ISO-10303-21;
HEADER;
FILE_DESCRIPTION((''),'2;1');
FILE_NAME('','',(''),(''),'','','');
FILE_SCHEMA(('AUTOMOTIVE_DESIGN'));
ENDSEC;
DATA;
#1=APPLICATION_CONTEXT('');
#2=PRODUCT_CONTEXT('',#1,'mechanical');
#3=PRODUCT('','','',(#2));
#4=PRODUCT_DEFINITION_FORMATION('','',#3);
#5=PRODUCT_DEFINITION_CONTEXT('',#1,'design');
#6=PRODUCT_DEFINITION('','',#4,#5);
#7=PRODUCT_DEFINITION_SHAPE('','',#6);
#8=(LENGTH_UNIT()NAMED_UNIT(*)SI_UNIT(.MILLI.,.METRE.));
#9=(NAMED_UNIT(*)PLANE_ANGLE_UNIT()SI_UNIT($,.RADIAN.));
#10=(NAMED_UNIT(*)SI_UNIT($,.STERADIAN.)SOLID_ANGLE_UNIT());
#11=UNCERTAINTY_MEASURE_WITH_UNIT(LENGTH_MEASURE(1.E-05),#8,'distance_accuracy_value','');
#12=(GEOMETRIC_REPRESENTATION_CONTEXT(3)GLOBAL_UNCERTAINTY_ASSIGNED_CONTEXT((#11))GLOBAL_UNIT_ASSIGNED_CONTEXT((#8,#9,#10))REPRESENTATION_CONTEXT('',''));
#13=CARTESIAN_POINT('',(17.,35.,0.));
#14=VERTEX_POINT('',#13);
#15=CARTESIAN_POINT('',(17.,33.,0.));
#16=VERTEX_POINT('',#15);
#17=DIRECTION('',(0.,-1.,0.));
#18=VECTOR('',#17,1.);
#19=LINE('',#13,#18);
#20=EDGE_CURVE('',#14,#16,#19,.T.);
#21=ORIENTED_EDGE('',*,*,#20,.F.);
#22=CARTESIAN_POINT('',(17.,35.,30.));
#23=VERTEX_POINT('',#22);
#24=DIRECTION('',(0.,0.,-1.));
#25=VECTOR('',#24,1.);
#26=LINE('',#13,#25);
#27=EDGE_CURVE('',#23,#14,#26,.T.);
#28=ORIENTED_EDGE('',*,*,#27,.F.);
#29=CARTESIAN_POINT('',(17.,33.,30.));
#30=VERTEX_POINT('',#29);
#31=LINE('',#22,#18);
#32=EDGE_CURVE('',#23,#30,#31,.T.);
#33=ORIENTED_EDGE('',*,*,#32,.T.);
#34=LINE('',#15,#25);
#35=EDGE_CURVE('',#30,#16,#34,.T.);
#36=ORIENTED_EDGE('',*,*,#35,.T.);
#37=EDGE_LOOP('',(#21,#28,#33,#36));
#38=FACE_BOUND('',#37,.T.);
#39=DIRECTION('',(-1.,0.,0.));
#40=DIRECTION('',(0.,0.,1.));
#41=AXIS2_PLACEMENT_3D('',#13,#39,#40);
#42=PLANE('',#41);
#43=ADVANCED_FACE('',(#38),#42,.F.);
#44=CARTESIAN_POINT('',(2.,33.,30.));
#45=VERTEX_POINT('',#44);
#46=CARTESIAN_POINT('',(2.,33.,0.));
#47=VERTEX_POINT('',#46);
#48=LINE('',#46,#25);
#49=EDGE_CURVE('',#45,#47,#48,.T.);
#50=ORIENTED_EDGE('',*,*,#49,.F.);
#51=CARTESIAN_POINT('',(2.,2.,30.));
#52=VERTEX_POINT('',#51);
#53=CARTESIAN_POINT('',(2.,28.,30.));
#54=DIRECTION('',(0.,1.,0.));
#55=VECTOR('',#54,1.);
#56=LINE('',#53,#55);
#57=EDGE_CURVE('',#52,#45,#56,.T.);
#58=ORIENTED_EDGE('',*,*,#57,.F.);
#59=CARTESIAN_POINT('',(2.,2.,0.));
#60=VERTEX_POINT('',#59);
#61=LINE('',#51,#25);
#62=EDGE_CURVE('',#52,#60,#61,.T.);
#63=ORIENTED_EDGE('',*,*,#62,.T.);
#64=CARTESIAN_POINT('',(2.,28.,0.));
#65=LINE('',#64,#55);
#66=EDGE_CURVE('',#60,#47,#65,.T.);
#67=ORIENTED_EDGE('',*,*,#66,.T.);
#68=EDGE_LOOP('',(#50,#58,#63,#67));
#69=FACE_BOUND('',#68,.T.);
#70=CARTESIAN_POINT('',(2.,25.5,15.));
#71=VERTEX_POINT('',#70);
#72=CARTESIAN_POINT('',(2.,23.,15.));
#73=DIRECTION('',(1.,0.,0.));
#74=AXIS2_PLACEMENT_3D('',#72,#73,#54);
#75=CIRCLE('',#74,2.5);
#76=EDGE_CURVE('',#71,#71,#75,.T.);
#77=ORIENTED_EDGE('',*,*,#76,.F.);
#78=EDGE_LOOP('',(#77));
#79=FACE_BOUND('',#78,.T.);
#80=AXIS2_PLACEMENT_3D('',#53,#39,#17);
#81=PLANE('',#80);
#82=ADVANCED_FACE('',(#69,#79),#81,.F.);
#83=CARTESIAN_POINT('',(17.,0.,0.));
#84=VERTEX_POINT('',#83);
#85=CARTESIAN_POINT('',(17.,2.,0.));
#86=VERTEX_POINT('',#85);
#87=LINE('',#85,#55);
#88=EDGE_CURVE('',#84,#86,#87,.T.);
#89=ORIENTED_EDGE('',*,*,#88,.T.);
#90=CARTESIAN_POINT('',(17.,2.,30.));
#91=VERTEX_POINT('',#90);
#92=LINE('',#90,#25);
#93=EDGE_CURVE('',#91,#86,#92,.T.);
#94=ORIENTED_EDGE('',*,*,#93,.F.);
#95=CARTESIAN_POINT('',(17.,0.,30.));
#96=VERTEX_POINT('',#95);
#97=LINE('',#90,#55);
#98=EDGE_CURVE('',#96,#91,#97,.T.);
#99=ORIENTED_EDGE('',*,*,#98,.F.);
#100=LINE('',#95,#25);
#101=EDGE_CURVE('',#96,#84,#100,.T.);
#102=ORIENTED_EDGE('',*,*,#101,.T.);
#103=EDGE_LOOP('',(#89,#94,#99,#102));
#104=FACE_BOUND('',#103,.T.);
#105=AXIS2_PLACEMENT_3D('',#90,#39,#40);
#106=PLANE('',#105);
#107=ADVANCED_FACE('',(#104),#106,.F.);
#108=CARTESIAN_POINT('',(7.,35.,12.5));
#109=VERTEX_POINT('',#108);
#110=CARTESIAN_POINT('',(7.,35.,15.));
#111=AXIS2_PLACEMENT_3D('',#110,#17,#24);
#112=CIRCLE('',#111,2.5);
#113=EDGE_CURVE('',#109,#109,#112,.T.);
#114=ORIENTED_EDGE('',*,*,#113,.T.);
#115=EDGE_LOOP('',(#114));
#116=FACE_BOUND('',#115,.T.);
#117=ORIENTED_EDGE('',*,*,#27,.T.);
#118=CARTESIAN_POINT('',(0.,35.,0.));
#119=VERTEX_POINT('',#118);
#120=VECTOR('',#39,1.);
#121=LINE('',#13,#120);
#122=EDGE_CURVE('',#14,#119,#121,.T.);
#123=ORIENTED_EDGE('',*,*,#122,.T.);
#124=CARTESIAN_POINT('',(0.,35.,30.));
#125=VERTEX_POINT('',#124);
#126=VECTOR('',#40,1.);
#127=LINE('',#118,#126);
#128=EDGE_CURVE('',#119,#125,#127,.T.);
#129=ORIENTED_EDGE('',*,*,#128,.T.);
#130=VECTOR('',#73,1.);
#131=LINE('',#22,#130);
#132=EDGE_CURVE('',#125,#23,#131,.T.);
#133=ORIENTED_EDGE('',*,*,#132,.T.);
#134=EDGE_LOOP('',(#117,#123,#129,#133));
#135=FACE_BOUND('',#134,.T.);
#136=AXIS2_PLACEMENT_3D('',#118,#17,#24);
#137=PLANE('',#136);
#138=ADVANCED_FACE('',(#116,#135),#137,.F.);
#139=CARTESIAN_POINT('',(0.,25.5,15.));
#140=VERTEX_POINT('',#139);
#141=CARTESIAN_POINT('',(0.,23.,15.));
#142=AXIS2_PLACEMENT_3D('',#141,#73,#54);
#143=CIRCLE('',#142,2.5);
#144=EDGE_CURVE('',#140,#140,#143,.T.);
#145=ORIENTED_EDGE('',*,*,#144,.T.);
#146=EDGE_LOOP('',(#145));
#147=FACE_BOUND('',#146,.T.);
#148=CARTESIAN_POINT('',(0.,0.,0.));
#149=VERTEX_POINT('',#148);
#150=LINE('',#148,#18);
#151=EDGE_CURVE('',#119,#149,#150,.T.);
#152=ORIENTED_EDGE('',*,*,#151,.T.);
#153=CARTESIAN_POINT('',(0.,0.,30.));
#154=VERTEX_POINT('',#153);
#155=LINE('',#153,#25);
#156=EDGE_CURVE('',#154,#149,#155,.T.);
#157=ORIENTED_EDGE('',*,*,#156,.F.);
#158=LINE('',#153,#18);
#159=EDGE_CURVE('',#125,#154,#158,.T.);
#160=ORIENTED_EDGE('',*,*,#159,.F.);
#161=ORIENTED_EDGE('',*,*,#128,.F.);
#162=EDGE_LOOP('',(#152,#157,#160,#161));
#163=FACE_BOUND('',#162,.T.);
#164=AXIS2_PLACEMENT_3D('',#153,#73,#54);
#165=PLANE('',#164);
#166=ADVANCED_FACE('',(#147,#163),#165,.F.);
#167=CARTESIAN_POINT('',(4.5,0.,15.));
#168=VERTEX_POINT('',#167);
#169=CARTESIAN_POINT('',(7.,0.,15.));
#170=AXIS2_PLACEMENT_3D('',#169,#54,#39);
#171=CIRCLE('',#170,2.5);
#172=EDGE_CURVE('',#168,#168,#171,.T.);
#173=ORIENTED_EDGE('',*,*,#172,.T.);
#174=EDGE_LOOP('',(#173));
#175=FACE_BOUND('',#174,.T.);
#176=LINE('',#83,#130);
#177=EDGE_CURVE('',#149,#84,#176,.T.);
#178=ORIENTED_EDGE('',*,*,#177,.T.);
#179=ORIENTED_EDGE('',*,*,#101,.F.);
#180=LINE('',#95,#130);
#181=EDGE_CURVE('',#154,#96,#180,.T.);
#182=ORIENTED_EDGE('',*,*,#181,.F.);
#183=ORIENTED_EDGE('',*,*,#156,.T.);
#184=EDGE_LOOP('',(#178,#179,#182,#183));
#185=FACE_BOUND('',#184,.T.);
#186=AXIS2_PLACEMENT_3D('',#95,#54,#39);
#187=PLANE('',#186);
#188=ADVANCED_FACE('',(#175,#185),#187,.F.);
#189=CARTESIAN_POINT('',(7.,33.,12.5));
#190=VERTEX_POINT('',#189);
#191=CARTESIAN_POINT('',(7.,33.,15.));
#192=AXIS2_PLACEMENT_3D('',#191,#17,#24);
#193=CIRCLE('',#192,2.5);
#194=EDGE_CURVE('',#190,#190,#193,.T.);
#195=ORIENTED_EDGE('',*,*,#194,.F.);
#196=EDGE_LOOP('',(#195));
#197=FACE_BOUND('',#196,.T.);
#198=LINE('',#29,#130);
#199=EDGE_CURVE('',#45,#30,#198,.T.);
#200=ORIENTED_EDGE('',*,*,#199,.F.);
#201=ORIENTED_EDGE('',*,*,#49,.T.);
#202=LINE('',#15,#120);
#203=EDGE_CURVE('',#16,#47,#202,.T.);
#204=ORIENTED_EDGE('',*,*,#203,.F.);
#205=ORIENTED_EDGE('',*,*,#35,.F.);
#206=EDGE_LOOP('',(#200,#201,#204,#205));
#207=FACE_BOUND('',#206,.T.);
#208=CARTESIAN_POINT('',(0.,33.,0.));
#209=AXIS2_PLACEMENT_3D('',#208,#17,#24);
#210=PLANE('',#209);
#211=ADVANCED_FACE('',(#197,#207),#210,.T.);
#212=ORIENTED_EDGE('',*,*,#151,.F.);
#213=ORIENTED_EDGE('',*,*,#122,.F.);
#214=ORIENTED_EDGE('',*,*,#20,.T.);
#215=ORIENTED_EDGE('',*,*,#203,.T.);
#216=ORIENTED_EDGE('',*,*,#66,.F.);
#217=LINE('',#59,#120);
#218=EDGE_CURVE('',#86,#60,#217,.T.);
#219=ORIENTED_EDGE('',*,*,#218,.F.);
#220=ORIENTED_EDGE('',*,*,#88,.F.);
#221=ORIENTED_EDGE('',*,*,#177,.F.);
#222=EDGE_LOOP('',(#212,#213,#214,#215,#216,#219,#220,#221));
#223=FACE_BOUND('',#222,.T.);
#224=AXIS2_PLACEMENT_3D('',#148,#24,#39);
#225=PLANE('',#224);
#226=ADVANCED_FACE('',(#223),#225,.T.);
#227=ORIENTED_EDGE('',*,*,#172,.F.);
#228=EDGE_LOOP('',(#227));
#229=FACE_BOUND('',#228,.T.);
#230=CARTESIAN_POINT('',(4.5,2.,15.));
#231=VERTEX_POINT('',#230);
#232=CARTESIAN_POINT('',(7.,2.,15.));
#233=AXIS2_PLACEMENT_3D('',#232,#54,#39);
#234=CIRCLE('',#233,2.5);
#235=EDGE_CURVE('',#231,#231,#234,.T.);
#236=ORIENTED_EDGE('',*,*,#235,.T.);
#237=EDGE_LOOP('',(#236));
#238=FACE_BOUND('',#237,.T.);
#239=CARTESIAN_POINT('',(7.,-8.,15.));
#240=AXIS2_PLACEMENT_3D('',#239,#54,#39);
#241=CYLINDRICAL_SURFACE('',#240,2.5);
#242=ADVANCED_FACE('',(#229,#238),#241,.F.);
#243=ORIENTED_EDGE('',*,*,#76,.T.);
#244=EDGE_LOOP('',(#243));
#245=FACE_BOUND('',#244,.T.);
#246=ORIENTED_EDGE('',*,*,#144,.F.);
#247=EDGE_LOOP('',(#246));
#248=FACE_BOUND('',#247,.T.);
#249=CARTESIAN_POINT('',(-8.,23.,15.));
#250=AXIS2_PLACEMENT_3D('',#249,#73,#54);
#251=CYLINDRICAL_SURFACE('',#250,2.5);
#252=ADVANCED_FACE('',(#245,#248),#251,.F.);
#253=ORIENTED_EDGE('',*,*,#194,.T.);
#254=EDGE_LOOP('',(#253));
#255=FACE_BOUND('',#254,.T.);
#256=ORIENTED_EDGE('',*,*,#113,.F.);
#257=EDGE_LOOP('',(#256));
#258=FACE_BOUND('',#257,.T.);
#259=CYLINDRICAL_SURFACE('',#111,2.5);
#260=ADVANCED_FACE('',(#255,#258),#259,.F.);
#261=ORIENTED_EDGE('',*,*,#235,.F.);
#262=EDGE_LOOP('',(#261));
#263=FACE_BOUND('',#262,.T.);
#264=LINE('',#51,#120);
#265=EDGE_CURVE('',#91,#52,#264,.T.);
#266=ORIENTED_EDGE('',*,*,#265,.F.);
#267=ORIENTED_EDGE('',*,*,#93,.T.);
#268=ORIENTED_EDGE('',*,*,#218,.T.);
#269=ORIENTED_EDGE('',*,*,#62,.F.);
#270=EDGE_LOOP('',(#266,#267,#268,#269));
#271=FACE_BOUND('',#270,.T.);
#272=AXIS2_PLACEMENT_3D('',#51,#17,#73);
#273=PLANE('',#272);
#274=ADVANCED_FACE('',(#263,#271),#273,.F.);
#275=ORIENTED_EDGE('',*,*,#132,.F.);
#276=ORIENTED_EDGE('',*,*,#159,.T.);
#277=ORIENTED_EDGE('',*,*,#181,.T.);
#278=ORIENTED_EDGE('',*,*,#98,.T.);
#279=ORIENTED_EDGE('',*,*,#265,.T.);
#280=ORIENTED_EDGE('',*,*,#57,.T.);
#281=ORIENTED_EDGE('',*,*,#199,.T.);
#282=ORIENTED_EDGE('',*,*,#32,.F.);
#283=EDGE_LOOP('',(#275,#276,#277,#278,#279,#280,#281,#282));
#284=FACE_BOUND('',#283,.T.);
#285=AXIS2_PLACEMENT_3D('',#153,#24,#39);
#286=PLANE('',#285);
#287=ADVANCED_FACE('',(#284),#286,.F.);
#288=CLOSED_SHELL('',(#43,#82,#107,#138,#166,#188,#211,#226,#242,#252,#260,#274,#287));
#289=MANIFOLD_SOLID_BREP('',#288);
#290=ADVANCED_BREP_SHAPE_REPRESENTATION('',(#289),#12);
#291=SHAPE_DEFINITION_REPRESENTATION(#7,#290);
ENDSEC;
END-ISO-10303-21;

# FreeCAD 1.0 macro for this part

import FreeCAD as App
import Part
import Sketcher
Q = App.Units.Quantity


def add_polygon(sketch, points):
    """Adds a closed chain of lines whose ends are joined by coincident constraints."""
    first, n = sketch.GeometryCount, len(points)
    for a, b in zip(points, points[1:] + points[:1]):
        sketch.addGeometry(Part.LineSegment(App.Vector(*a, 0), App.Vector(*b, 0)), False)
    for i in range(n):
        sketch.addConstraint(Sketcher.Constraint("Coincident", first + i, 2, first + (i + 1) % n, 1))

doc = App.newDocument("Part")
body = doc.addObject("PartDesign::Body", "Body")

sketch1 = doc.addObject("Sketcher::SketchObject", "Sketch")
body.addObject(sketch1)
sketch1.AttachmentSupport = (doc.XY_Plane, [""])
sketch1.MapMode = "FlatFace"
add_polygon(sketch1, [(0, 28), (0, 0), (17, 0), (17, 2), (2, 2), (2, 28)])
sketch1.addConstraint([
    Sketcher.Constraint("Vertical", 0),
    Sketcher.Constraint("Horizontal", 1),
    Sketcher.Constraint("Vertical", 2),
    Sketcher.Constraint("Horizontal", 3),
    Sketcher.Constraint("Vertical", 4),
    Sketcher.Constraint("Horizontal", 5),
    Sketcher.Constraint("Coincident", 0, 2, -1, 1),
    Sketcher.Constraint("Equal", 5, 2),
    Sketcher.Constraint("DistanceX", 1, 1, 1, 2, Q("17 mm")),
    Sketcher.Constraint("DistanceX", 3, 2, 3, 1, Q("15 mm")),
    Sketcher.Constraint("DistanceY", 0, 2, 0, 1, Q("28 mm")),
])
pad1 = doc.addObject("PartDesign::Pad", "Pad")
body.addObject(pad1)
pad1.Profile = sketch1
pad1.Length = 30

sketch2 = doc.addObject("Sketcher::SketchObject", "Sketch001")
body.addObject(sketch2)
sketch2.AttachmentSupport = (doc.XZ_Plane, [""])
sketch2.MapMode = "FlatFace"
sketch2.AttachmentOffset = App.Placement(App.Vector(0, 0, -2), App.Rotation())
sketch2.addGeometry(Part.Circle(App.Vector(7, 15, 0), App.Vector(0, 0, 1), 2.5), False)
sketch2.addConstraint([
    Sketcher.Constraint("Diameter", 0, Q("5 mm")),
    Sketcher.Constraint("DistanceX", -1, 1, 0, 3, Q("7 mm")),
    Sketcher.Constraint("DistanceY", -1, 1, 0, 3, Q("15 mm")),
])
pocket1 = doc.addObject("PartDesign::Pocket", "Pocket")
body.addObject(pocket1)
pocket1.Profile = sketch2
pocket1.Length = 10
pocket1.Reversed = True

sketch3 = doc.addObject("Sketcher::SketchObject", "Sketch002")
body.addObject(sketch3)
sketch3.AttachmentSupport = (doc.YZ_Plane, [""])
sketch3.MapMode = "FlatFace"
sketch3.AttachmentOffset = App.Placement(App.Vector(0, 0, 2), App.Rotation())
sketch3.addGeometry(Part.Circle(App.Vector(23, 15, 0), App.Vector(0, 0, 1), 2.5), False)
sketch3.addConstraint([
    Sketcher.Constraint("Diameter", 0, Q("5 mm")),
    Sketcher.Constraint("DistanceX", -1, 1, 0, 3, Q("23 mm")),
    Sketcher.Constraint("DistanceY", -1, 1, 0, 3, Q("15 mm")),
])
pocket2 = doc.addObject("PartDesign::Pocket", "Pocket001")
body.addObject(pocket2)
pocket2.Profile = sketch3
pocket2.Length = 10

sketch4 = doc.addObject("Sketcher::SketchObject", "Sketch003")
body.addObject(sketch4)
sketch4.AttachmentSupport = (doc.XZ_Plane, [""])
sketch4.MapMode = "FlatFace"
sketch4.AttachmentOffset = App.Placement(App.Vector(0, 0, -28), App.Rotation())
add_polygon(sketch4, [(0, 0), (0, 30), (2, 30), (2, 0)])
sketch4.addConstraint([
    Sketcher.Constraint("Vertical", 0),
    Sketcher.Constraint("Horizontal", 1),
    Sketcher.Constraint("Vertical", 2),
    Sketcher.Constraint("Horizontal", 3),
    Sketcher.Constraint("Coincident", 3, 2, -1, 1),
    Sketcher.Constraint("DistanceX", 1, 1, 1, 2, Q("2 mm")),
    Sketcher.Constraint("DistanceY", 0, 1, 0, 2, Q("30 mm")),
])
pad2 = doc.addObject("PartDesign::Pad", "Pad001")
body.addObject(pad2)
pad2.Profile = sketch4
pad2.Length = 5
pad2.Reversed = True

sketch5 = doc.addObject("Sketcher::SketchObject", "Sketch004")
body.addObject(sketch5)
sketch5.AttachmentSupport = (doc.XZ_Plane, [""])
sketch5.MapMode = "FlatFace"
sketch5.AttachmentOffset = App.Placement(App.Vector(0, 0, -33), App.Rotation())
add_polygon(sketch5, [(0, 0), (0, 30), (17, 30), (17, 0)])
sketch5.addConstraint([
    Sketcher.Constraint("Vertical", 0),
    Sketcher.Constraint("Horizontal", 1),
    Sketcher.Constraint("Vertical", 2),
    Sketcher.Constraint("Horizontal", 3),
    Sketcher.Constraint("Coincident", 3, 2, -1, 1),
    Sketcher.Constraint("DistanceX", 1, 1, 1, 2, Q("17 mm")),
    Sketcher.Constraint("DistanceY", 0, 1, 0, 2, Q("30 mm")),
])
pad3 = doc.addObject("PartDesign::Pad", "Pad002")
body.addObject(pad3)
pad3.Profile = sketch5
pad3.Length = 2
pad3.Reversed = True

sketch6 = doc.addObject("Sketcher::SketchObject", "Sketch005")
body.addObject(sketch6)
sketch6.AttachmentSupport = (doc.XZ_Plane, [""])
sketch6.MapMode = "FlatFace"
sketch6.AttachmentOffset = App.Placement(App.Vector(0, 0, -33), App.Rotation())
sketch6.addGeometry(Part.Circle(App.Vector(7, 15, 0), App.Vector(0, 0, 1), 2.5), False)
sketch6.addConstraint([
    Sketcher.Constraint("Diameter", 0, Q("5 mm")),
    Sketcher.Constraint("DistanceX", -1, 1, 0, 3, Q("7 mm")),
    Sketcher.Constraint("DistanceY", -1, 1, 0, 3, Q("15 mm")),
])
pocket3 = doc.addObject("PartDesign::Pocket", "Pocket002")
body.addObject(pocket3)
pocket3.Profile = sketch6
pocket3.Length = 2

doc.recompute()
